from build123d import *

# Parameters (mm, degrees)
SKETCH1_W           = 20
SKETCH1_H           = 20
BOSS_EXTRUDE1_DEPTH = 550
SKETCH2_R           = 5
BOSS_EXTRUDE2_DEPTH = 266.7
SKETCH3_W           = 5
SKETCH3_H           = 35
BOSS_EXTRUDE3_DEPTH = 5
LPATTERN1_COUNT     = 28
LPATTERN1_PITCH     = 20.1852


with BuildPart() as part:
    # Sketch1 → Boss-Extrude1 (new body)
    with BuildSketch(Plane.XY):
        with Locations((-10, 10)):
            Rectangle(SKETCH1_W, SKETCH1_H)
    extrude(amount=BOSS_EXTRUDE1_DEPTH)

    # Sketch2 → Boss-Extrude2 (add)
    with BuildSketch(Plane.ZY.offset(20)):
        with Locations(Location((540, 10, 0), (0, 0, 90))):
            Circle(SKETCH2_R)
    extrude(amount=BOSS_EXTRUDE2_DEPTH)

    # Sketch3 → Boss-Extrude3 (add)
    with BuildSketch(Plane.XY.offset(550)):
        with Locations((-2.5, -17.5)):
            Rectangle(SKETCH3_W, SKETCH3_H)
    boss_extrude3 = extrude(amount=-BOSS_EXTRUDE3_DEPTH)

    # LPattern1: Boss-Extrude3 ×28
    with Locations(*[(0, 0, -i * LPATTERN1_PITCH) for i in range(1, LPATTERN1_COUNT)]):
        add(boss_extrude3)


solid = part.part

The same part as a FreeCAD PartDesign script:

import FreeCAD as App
import Part
import Sketcher

doc = App.newDocument("Part")
body = doc.addObject("PartDesign::Body", "Body")

sketch1 = body.newObject("Sketcher::SketchObject", "Sketch")
sketch1.AttachmentSupport = (doc.getObject("XY_Plane"), [""])
sketch1.MapMode = "FlatFace"
sketch1.addGeometry(Part.LineSegment(App.Vector(-20, 20, 0), App.Vector(-20, 0, 0)), False)
sketch1.addGeometry(Part.LineSegment(App.Vector(-20, 0, 0), App.Vector(0, 0, 0)), False)
sketch1.addGeometry(Part.LineSegment(App.Vector(0, 0, 0), App.Vector(0, 20, 0)), False)
sketch1.addGeometry(Part.LineSegment(App.Vector(0, 20, 0), App.Vector(-20, 20, 0)), False)
sketch1.addConstraint(Sketcher.Constraint("Coincident", 0, 2, 1, 1))
sketch1.addConstraint(Sketcher.Constraint("Coincident", 1, 2, 2, 1))
sketch1.addConstraint(Sketcher.Constraint("Coincident", 2, 2, 3, 1))
sketch1.addConstraint(Sketcher.Constraint("Coincident", 3, 2, 0, 1))
sketch1.addConstraint(Sketcher.Constraint("Vertical", 0))
sketch1.addConstraint(Sketcher.Constraint("Horizontal", 1))
sketch1.addConstraint(Sketcher.Constraint("Vertical", 2))
sketch1.addConstraint(Sketcher.Constraint("Horizontal", 3))
sketch1.addConstraint(Sketcher.Constraint("Coincident", 1, 2, -1, 1))
sketch1.addConstraint(Sketcher.Constraint("Equal", 3, 0))
sketch1.addConstraint(Sketcher.Constraint("DistanceX", 1, 1, 1, 2, 20.0))
pad1 = body.newObject("PartDesign::Pad", "Pad")
pad1.Profile = sketch1
pad1.Length = 550

sketch2 = body.newObject("Sketcher::SketchObject", "Sketch001")
sketch2.AttachmentSupport = (doc.getObject("YZ_Plane"), [""])
sketch2.MapMode = "FlatFace"
sketch2.AttachmentOffset = App.Placement(App.Vector(0, 0, -20), App.Rotation())
sketch2.addGeometry(Part.Circle(App.Vector(10, 540, 0), App.Vector(0, 0, 1), 5), False)
sketch2.addConstraint(Sketcher.Constraint("Diameter", 0, 10.0))
sketch2.addConstraint(Sketcher.Constraint("DistanceX", -1, 1, 0, 3, 10.0))
sketch2.addConstraint(Sketcher.Constraint("DistanceY", -1, 1, 0, 3, 540.0))
pad2 = body.newObject("PartDesign::Pad", "Pad001")
pad2.Profile = sketch2
pad2.Length = 266.7
pad2.Reversed = True

sketch3 = body.newObject("Sketcher::SketchObject", "Sketch002")
sketch3.AttachmentSupport = (doc.getObject("XY_Plane"), [""])
sketch3.MapMode = "FlatFace"
sketch3.AttachmentOffset = App.Placement(App.Vector(0, 0, 550), App.Rotation())
sketch3.addGeometry(Part.LineSegment(App.Vector(-5, 0, 0), App.Vector(-5, -35, 0)), False)
sketch3.addGeometry(Part.LineSegment(App.Vector(-5, -35, 0), App.Vector(0, -35, 0)), False)
sketch3.addGeometry(Part.LineSegment(App.Vector(0, -35, 0), App.Vector(0, 0, 0)), False)
sketch3.addGeometry(Part.LineSegment(App.Vector(0, 0, 0), App.Vector(-5, 0, 0)), False)
sketch3.addConstraint(Sketcher.Constraint("Coincident", 0, 2, 1, 1))
sketch3.addConstraint(Sketcher.Constraint("Coincident", 1, 2, 2, 1))
sketch3.addConstraint(Sketcher.Constraint("Coincident", 2, 2, 3, 1))
sketch3.addConstraint(Sketcher.Constraint("Coincident", 3, 2, 0, 1))
sketch3.addConstraint(Sketcher.Constraint("Vertical", 0))
sketch3.addConstraint(Sketcher.Constraint("Horizontal", 1))
sketch3.addConstraint(Sketcher.Constraint("Vertical", 2))
sketch3.addConstraint(Sketcher.Constraint("Horizontal", 3))
sketch3.addConstraint(Sketcher.Constraint("Coincident", 2, 2, -1, 1))
sketch3.addConstraint(Sketcher.Constraint("DistanceX", 1, 1, 1, 2, 5.0))
sketch3.addConstraint(Sketcher.Constraint("DistanceY", 0, 2, 0, 1, 35.0))
pad3 = body.newObject("PartDesign::Pad", "Pad002")
pad3.Profile = sketch3
pad3.Length = 5
pad3.Reversed = True
doc.recompute()

linearpattern = body.newObject("PartDesign::LinearPattern", "LinearPattern")
linearpattern.Originals = [pad3]
linearpattern.Direction = (doc.getObject("Z_Axis"), [""])
linearpattern.Mode = "offset"
linearpattern.Offset = 20.1852
linearpattern.Occurrences = 28
linearpattern.Reversed = True
body.Tip = linearpattern

doc.recompute()
